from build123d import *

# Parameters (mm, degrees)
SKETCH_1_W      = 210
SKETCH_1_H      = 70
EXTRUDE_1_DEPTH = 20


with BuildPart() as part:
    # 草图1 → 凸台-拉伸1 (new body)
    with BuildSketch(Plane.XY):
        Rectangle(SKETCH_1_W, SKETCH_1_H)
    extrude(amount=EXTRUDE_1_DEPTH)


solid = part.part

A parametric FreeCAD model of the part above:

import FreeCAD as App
import Part
import Sketcher
from FreeCAD import Vector
Q = App.Units.Quantity


def add_polygon(sketch, points):
    """Adds a closed chain of lines whose ends are joined by coincident constraints."""
    first, n = sketch.GeometryCount, len(points)
    for a, b in zip(points, points[1:] + points[:1]):
        sketch.addGeometry(Part.LineSegment(App.Vector(*a, 0), App.Vector(*b, 0)), False)
    for i in range(n):
        sketch.addConstraint(Sketcher.Constraint("Coincident", first + i, 2, first + (i + 1) % n, 1))

doc = App.newDocument("Part")
params = doc.addObject("Spreadsheet::Sheet", "Params")
for row, (alias, value) in enumerate([
    ("sketch1_width", "210 mm"),
    ("sketch1_height", "70 mm"),
    ("pad1_length", "20 mm"),
], start=1):
    params.set(f"A{row}", alias)
    params.set(f"B{row}", "=" + value)
    params.setAlias(f"B{row}", alias)

body = doc.addObject("PartDesign::Body", "Body")

# Sketch on XY plane
sketch1 = doc.addObject("Sketcher::SketchObject", "Sketch")
body.addObject(sketch1)
sketch1.AttachmentSupport = (doc.XY_Plane, [""])
sketch1.MapMode = "FlatFace"
add_polygon(sketch1, [(-105, 35), (-105, -35), (105, -35), (105, 35)])  # lines 0-3
sketch1.addConstraint([
    Sketcher.Constraint("Vertical", 0),
    Sketcher.Constraint("Horizontal", 1),
    Sketcher.Constraint("Vertical", 2),
    Sketcher.Constraint("Horizontal", 3),
    Sketcher.Constraint("Symmetric", 0, 2, 2, 2, -1, 1),
    Sketcher.Constraint("DistanceX", 1, 1, 1, 2, Q("210 mm")),
    Sketcher.Constraint("DistanceY", 0, 2, 0, 1, Q("70 mm")),
])
sketch1.setExpression("Constraints[9]", "Params.sketch1_width")
sketch1.setExpression("Constraints[10]", "Params.sketch1_height")
pad1 = doc.addObject("PartDesign::Pad", "Pad")
body.addObject(pad1)
pad1.Profile = sketch1
pad1.setExpression("Length", "Params.pad1_length")

doc.recompute()
